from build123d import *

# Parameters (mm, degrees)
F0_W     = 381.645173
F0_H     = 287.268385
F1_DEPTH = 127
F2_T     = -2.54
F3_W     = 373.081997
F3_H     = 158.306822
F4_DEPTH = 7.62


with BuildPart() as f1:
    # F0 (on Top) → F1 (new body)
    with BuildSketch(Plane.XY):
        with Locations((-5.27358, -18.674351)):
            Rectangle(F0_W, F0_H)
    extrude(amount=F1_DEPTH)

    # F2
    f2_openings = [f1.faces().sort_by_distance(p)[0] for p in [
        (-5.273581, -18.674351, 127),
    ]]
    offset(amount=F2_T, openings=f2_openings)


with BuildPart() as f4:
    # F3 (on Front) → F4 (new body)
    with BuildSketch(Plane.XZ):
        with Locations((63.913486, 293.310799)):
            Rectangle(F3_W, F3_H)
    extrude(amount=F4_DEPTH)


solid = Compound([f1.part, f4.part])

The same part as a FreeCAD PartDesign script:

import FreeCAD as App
import Part
import Sketcher
Q = App.Units.Quantity


def faces_at(feature, points):
    """Names of the faces that lie closest to the given points."""
    faces = feature.Shape.Faces
    near = lambda p: min(range(len(faces)), key=lambda i: faces[i].distToShape(Part.Vertex(*p))[0])
    return sorted({f"Face{near(p) + 1}" for p in points})

doc = App.newDocument("Part")
params = doc.addObject("Spreadsheet::Sheet", "Params")
for row, (alias, value) in enumerate([
    ("pad1_length", "5 in"),
    ("thickness_wall", "0.1 in"),
    ("pad2_length", "0.3 in"),
], start=1):
    params.set(f"A{row}", alias)
    params.set(f"B{row}", "=" + value)
    params.setAlias(f"B{row}", alias)

body = doc.addObject("PartDesign::Body", "Body")

# Sketch on XY plane
sketch1 = body.newObject("Sketcher::SketchObject", "Sketch")
sketch1.AttachmentSupport = (doc.getObject("XY_Plane"), [""])
sketch1.MapMode = "FlatFace"
sketch1.addGeometry(Part.LineSegment(App.Vector(-196.096167, 124.959841, 0), App.Vector(-196.096167, -162.308544, 0)), False)
sketch1.addGeometry(Part.LineSegment(App.Vector(-196.096167, -162.308544, 0), App.Vector(185.549006, -162.308544, 0)), False)
sketch1.addGeometry(Part.LineSegment(App.Vector(185.549006, -162.308544, 0), App.Vector(185.549006, 124.959841, 0)), False)
sketch1.addGeometry(Part.LineSegment(App.Vector(185.549006, 124.959841, 0), App.Vector(-196.096167, 124.959841, 0)), False)
sketch1.addConstraint(Sketcher.Constraint("Coincident", 0, 2, 1, 1))
sketch1.addConstraint(Sketcher.Constraint("Coincident", 1, 2, 2, 1))
sketch1.addConstraint(Sketcher.Constraint("Coincident", 2, 2, 3, 1))
sketch1.addConstraint(Sketcher.Constraint("Coincident", 3, 2, 0, 1))
sketch1.addConstraint(Sketcher.Constraint("Vertical", 0))
sketch1.addConstraint(Sketcher.Constraint("Horizontal", 1))
sketch1.addConstraint(Sketcher.Constraint("Vertical", 2))
sketch1.addConstraint(Sketcher.Constraint("Horizontal", 3))
sketch1.addConstraint(Sketcher.Constraint("DistanceY", 0, 2, -1, 1, Q("6.3901001 in")))
sketch1.addConstraint(Sketcher.Constraint("DistanceX", 1, 1, 1, 2, Q("381.645173 mm")))
sketch1.addConstraint(Sketcher.Constraint("DistanceY", 0, 2, 0, 1, Q("287.268385 mm")))
sketch1.addConstraint(Sketcher.Constraint("DistanceX", 0, 2, -1, 1, Q("196.096167 mm")))
pad1 = body.newObject("PartDesign::Pad", "Pad")
pad1.Profile = sketch1
pad1.setExpression("Length", "Params.pad1_length")
doc.recompute()

thickness = body.newObject("PartDesign::Thickness", "Thickness")
thickness.Base = (pad1, faces_at(pad1, [(-5.274, -18.674, 127)]))
thickness.setExpression("Value", "Params.thickness_wall")
thickness.Reversed = True
thickness.Join = "Arc"
body2 = doc.addObject("PartDesign::Body", "Body001")

# Sketch on XZ plane
sketch2 = body2.newObject("Sketcher::SketchObject", "Sketch001")
sketch2.AttachmentSupport = (doc.getObject("XZ_Plane001"), [""])
sketch2.MapMode = "FlatFace"
sketch2.addGeometry(Part.LineSegment(App.Vector(-122.627512, 372.46421, 0), App.Vector(-122.627512, 214.157388, 0)), False)
sketch2.addGeometry(Part.LineSegment(App.Vector(-122.627512, 214.157388, 0), App.Vector(250.454485, 214.157388, 0)), False)
sketch2.addGeometry(Part.LineSegment(App.Vector(250.454485, 214.157388, 0), App.Vector(250.454485, 372.46421, 0)), False)
sketch2.addGeometry(Part.LineSegment(App.Vector(250.454485, 372.46421, 0), App.Vector(-122.627512, 372.46421, 0)), False)
sketch2.addConstraint(Sketcher.Constraint("Coincident", 0, 2, 1, 1))
sketch2.addConstraint(Sketcher.Constraint("Coincident", 1, 2, 2, 1))
sketch2.addConstraint(Sketcher.Constraint("Coincident", 2, 2, 3, 1))
sketch2.addConstraint(Sketcher.Constraint("Coincident", 3, 2, 0, 1))
sketch2.addConstraint(Sketcher.Constraint("Vertical", 0))
sketch2.addConstraint(Sketcher.Constraint("Horizontal", 1))
sketch2.addConstraint(Sketcher.Constraint("Vertical", 2))
sketch2.addConstraint(Sketcher.Constraint("Horizontal", 3))
sketch2.addConstraint(Sketcher.Constraint("DistanceY", 0, 2, 0, 1, Q("158.306822 mm")))
sketch2.addConstraint(Sketcher.Constraint("DistanceX", 1, 1, 1, 2, Q("373.081997 mm")))
sketch2.addConstraint(Sketcher.Constraint("DistanceY", -1, 1, 0, 2, Q("214.157388 mm")))
sketch2.addConstraint(Sketcher.Constraint("DistanceX", 0, 2, -1, 1, Q("122.627512 mm")))
pad2 = body2.newObject("PartDesign::Pad", "Pad001")
pad2.Profile = sketch2
pad2.setExpression("Length", "Params.pad2_length")

doc.recompute()
